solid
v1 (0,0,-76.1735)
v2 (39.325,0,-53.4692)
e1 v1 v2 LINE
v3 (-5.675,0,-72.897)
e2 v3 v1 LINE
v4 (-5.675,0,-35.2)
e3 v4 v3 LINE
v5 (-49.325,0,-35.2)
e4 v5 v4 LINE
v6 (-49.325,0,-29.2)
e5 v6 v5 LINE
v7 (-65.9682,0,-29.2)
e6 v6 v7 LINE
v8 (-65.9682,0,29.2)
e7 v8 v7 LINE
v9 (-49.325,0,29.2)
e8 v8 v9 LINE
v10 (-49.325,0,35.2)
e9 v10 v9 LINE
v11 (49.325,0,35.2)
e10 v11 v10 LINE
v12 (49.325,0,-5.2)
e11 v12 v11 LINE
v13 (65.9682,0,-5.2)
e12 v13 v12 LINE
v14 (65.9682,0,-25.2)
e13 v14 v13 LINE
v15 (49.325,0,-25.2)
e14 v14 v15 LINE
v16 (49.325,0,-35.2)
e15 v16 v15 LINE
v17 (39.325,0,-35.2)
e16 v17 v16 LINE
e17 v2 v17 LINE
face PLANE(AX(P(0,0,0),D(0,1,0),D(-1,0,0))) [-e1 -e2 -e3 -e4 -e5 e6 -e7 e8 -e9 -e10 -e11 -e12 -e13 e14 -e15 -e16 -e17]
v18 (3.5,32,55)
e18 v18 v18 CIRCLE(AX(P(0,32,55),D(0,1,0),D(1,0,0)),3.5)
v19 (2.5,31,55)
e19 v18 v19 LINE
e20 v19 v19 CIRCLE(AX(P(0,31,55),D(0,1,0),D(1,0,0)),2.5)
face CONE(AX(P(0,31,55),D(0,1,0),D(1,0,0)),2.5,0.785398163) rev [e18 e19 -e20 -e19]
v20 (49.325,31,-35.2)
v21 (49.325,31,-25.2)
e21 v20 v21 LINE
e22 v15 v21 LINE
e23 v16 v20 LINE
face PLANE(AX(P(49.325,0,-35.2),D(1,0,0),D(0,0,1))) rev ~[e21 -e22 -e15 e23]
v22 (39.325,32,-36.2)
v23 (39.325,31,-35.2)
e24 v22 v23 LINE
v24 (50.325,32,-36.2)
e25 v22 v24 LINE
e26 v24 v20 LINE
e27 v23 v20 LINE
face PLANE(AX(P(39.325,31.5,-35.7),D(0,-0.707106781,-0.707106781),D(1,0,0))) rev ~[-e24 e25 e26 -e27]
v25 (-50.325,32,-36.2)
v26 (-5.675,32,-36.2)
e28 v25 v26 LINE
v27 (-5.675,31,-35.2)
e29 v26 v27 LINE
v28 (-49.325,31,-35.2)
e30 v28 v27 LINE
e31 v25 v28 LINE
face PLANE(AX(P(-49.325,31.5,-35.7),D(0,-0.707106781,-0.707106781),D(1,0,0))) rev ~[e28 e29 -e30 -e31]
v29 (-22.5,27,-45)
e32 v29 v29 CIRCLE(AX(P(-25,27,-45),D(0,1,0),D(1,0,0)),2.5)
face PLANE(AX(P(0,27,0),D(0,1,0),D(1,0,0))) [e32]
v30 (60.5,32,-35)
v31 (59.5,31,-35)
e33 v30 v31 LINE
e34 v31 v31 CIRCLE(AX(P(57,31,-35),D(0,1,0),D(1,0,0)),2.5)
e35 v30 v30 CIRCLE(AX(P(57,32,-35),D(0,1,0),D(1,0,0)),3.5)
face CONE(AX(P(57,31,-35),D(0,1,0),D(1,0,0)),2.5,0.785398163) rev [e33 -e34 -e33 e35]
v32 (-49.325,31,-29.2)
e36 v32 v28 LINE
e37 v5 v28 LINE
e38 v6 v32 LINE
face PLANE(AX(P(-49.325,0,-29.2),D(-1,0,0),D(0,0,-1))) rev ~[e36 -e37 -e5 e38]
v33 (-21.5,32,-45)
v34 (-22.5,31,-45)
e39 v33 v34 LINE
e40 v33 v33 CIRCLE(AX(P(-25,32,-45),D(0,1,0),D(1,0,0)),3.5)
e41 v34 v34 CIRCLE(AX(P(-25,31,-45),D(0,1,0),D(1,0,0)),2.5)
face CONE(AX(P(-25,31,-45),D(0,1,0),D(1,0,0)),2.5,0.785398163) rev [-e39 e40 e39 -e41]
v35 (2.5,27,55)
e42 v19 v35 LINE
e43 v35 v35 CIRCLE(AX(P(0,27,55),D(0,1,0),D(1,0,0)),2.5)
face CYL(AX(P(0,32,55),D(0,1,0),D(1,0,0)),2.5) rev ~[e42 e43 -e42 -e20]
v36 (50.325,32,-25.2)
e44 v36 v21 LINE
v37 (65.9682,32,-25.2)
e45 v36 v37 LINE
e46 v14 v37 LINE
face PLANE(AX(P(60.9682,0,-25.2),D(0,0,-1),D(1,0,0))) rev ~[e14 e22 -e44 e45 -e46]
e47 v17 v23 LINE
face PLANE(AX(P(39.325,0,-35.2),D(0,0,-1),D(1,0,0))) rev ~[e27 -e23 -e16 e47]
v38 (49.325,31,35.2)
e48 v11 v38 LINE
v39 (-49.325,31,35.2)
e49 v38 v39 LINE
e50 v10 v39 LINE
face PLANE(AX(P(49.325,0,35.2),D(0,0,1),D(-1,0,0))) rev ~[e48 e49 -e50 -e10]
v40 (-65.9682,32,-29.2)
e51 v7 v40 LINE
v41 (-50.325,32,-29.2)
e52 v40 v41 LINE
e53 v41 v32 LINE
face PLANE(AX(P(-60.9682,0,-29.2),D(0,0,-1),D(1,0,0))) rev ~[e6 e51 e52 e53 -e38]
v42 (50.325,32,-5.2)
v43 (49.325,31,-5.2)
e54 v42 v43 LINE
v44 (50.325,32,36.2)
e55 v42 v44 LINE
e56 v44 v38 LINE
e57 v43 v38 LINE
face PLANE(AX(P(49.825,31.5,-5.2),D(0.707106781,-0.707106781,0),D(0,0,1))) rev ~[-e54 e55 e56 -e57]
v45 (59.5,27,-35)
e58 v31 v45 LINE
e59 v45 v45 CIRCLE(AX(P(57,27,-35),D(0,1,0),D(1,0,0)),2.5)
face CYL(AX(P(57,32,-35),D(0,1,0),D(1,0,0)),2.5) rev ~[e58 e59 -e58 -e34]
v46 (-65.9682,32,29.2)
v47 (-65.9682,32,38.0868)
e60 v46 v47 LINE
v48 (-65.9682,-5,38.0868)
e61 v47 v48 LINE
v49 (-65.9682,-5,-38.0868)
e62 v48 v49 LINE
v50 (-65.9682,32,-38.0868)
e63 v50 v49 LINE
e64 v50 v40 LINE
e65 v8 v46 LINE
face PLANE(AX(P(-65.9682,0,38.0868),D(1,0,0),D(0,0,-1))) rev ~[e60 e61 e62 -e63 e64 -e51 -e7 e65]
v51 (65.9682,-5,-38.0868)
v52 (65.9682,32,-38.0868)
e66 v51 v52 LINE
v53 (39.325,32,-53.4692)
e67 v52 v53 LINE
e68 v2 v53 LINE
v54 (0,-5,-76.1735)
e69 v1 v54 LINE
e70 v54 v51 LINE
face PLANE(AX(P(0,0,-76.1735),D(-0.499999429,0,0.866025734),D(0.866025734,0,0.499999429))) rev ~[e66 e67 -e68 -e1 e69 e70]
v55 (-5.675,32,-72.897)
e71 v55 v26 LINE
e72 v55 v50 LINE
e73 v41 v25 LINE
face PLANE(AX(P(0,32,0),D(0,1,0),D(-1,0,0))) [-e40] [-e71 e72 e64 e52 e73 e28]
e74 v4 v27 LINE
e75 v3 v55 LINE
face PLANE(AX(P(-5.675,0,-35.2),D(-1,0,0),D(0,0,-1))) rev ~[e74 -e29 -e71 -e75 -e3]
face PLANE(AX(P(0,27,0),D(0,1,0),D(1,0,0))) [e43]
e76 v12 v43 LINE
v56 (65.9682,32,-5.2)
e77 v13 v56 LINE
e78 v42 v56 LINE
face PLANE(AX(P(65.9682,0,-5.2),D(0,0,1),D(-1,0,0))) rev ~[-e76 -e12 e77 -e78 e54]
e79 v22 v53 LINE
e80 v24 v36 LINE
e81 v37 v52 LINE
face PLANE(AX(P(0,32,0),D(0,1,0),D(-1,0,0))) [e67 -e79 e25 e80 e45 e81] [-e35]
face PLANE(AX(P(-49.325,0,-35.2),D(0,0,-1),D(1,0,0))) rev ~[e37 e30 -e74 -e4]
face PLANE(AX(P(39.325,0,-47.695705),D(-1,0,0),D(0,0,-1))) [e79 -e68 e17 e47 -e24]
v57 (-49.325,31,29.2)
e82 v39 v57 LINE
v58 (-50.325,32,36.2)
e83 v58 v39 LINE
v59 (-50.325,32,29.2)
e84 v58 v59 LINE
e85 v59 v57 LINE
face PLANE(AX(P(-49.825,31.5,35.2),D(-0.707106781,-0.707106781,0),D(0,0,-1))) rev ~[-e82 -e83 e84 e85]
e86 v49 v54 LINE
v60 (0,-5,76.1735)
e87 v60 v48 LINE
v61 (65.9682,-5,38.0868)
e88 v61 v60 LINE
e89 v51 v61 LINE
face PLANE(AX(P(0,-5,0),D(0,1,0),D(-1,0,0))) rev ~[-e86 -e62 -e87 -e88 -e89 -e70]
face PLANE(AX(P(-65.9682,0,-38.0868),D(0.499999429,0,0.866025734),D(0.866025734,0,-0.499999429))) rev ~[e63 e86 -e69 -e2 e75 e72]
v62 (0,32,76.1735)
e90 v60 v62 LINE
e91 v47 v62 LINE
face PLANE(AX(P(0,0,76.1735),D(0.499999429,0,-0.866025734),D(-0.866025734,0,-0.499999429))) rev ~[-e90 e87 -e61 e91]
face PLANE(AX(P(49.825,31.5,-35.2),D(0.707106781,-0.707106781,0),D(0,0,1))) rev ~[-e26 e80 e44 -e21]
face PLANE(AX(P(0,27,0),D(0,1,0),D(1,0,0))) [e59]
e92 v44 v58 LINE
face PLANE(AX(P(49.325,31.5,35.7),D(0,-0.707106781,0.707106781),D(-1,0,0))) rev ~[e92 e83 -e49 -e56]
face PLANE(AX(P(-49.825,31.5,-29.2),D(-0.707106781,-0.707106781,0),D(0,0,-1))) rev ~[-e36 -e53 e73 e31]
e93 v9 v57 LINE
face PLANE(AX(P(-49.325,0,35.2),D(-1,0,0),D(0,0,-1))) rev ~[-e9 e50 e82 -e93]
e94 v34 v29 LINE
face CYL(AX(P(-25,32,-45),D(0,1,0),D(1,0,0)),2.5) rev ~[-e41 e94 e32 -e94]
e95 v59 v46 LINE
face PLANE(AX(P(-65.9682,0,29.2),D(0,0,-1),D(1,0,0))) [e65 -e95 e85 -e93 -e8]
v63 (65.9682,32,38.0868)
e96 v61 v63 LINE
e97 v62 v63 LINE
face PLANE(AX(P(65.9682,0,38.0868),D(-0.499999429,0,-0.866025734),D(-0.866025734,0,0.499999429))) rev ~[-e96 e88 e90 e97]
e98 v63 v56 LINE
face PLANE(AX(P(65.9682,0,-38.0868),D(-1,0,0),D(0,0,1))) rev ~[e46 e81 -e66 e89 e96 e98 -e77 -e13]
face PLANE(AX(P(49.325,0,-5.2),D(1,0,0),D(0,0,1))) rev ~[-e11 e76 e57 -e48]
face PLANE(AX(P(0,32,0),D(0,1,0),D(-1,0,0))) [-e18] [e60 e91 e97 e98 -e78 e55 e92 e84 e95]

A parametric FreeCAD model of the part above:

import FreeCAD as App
import Part
import Sketcher
Q = App.Units.Quantity


def edges_at(feature, points):
    """Names of the edges that pass closest to the given points."""
    edges = feature.Shape.Edges
    near = lambda p: min(range(len(edges)), key=lambda i: edges[i].distToShape(Part.Vertex(*p))[0])
    return sorted({f"Edge{near(p) + 1}" for p in points})

doc = App.newDocument("Part")
body = doc.addObject("PartDesign::Body", "Body")
body.AllowCompound = True

# Sketch on XZ plane
sketch1 = body.newObject("Sketcher::SketchObject", "Sketch")
sketch1.AttachmentSupport = (doc.getObject("XZ_Plane"), [""])
sketch1.MapMode = "FlatFace"
sketch1.addGeometry(Part.LineSegment(App.Vector(39, -53, 0), App.Vector(39, -35, 0)), False)
sketch1.addGeometry(Part.LineSegment(App.Vector(39, -35, 0), App.Vector(49, -35, 0)), False)
sketch1.addGeometry(Part.LineSegment(App.Vector(49, -35, 0), App.Vector(49, -25, 0)), False)
sketch1.addGeometry(Part.LineSegment(App.Vector(49, -25, 0), App.Vector(66, -25, 0)), False)
sketch1.addGeometry(Part.LineSegment(App.Vector(66, -25, 0), App.Vector(66, -38, 0)), False)
sketch1.addGeometry(Part.LineSegment(App.Vector(66, -38, 0), App.Vector(39, -53, 0)), False)
sketch1.addGeometry(Part.LineSegment(App.Vector(-6, -35, 0), App.Vector(-6, -73, 0)), False)
sketch1.addGeometry(Part.LineSegment(App.Vector(-6, -73, 0), App.Vector(-66, -38, 0)), False)
sketch1.addGeometry(Part.LineSegment(App.Vector(-66, -38, 0), App.Vector(-66, -29, 0)), False)
sketch1.addGeometry(Part.LineSegment(App.Vector(-66, -29, 0), App.Vector(-49, -29, 0)), False)
sketch1.addGeometry(Part.LineSegment(App.Vector(-49, -29, 0), App.Vector(-49, -35, 0)), False)
sketch1.addGeometry(Part.LineSegment(App.Vector(-49, -35, 0), App.Vector(-6, -35, 0)), False)
sketch1.addGeometry(Part.LineSegment(App.Vector(66, -5, 0), App.Vector(49, -5, 0)), False)
sketch1.addGeometry(Part.LineSegment(App.Vector(49, -5, 0), App.Vector(49, 35, 0)), False)
sketch1.addGeometry(Part.LineSegment(App.Vector(49, 35, 0), App.Vector(-49, 35, 0)), False)
sketch1.addGeometry(Part.LineSegment(App.Vector(-49, 35, 0), App.Vector(-49, 29, 0)), False)
sketch1.addGeometry(Part.LineSegment(App.Vector(-49, 29, 0), App.Vector(-66, 29, 0)), False)
sketch1.addGeometry(Part.LineSegment(App.Vector(-66, 29, 0), App.Vector(-66, 38, 0)), False)
sketch1.addGeometry(Part.LineSegment(App.Vector(-66, 38, 0), App.Vector(0, 76, 0)), False)
sketch1.addGeometry(Part.LineSegment(App.Vector(0, 76, 0), App.Vector(66, 38, 0)), False)
sketch1.addGeometry(Part.LineSegment(App.Vector(66, 38, 0), App.Vector(66, -5, 0)), False)
sketch1.addConstraint(Sketcher.Constraint("Coincident", 0, 2, 1, 1))
sketch1.addConstraint(Sketcher.Constraint("Coincident", 1, 2, 2, 1))
sketch1.addConstraint(Sketcher.Constraint("Coincident", 2, 2, 3, 1))
sketch1.addConstraint(Sketcher.Constraint("Coincident", 3, 2, 4, 1))
sketch1.addConstraint(Sketcher.Constraint("Coincident", 4, 2, 5, 1))
sketch1.addConstraint(Sketcher.Constraint("Coincident", 5, 2, 0, 1))
sketch1.addConstraint(Sketcher.Constraint("Coincident", 6, 2, 7, 1))
sketch1.addConstraint(Sketcher.Constraint("Coincident", 7, 2, 8, 1))
sketch1.addConstraint(Sketcher.Constraint("Coincident", 8, 2, 9, 1))
sketch1.addConstraint(Sketcher.Constraint("Coincident", 9, 2, 10, 1))
sketch1.addConstraint(Sketcher.Constraint("Coincident", 10, 2, 11, 1))
sketch1.addConstraint(Sketcher.Constraint("Coincident", 11, 2, 6, 1))
sketch1.addConstraint(Sketcher.Constraint("Coincident", 12, 2, 13, 1))
sketch1.addConstraint(Sketcher.Constraint("Coincident", 13, 2, 14, 1))
sketch1.addConstraint(Sketcher.Constraint("Coincident", 14, 2, 15, 1))
sketch1.addConstraint(Sketcher.Constraint("Coincident", 15, 2, 16, 1))
sketch1.addConstraint(Sketcher.Constraint("Coincident", 16, 2, 17, 1))
sketch1.addConstraint(Sketcher.Constraint("Coincident", 17, 2, 18, 1))
sketch1.addConstraint(Sketcher.Constraint("Coincident", 18, 2, 19, 1))
sketch1.addConstraint(Sketcher.Constraint("Coincident", 19, 2, 20, 1))
sketch1.addConstraint(Sketcher.Constraint("Coincident", 20, 2, 12, 1))
sketch1.addConstraint(Sketcher.Constraint("Vertical", 0))
sketch1.addConstraint(Sketcher.Constraint("Horizontal", 1))
sketch1.addConstraint(Sketcher.Constraint("Vertical", 2))
sketch1.addConstraint(Sketcher.Constraint("Horizontal", 3))
sketch1.addConstraint(Sketcher.Constraint("Vertical", 4))
sketch1.addConstraint(Sketcher.Constraint("Vertical", 6))
sketch1.addConstraint(Sketcher.Constraint("Vertical", 8))
sketch1.addConstraint(Sketcher.Constraint("Horizontal", 9))
sketch1.addConstraint(Sketcher.Constraint("Vertical", 10))
sketch1.addConstraint(Sketcher.Constraint("Horizontal", 11))
sketch1.addConstraint(Sketcher.Constraint("Horizontal", 12))
sketch1.addConstraint(Sketcher.Constraint("Vertical", 13))
sketch1.addConstraint(Sketcher.Constraint("Horizontal", 14))
sketch1.addConstraint(Sketcher.Constraint("Vertical", 15))
sketch1.addConstraint(Sketcher.Constraint("Horizontal", 16))
sketch1.addConstraint(Sketcher.Constraint("Vertical", 17))
sketch1.addConstraint(Sketcher.Constraint("Vertical", 20))
sketch1.addConstraint(Sketcher.Constraint("Symmetric", 10, 2, 13, 2, -1, 1))
sketch1.addConstraint(Sketcher.Constraint("Symmetric", 1, 2, 14, 2, -1, 1))
sketch1.addConstraint(Sketcher.Constraint("Symmetric", 4, 2, 17, 2, -1, 1))
sketch1.addConstraint(Sketcher.Constraint("Symmetric", 7, 2, 19, 2, -1, 1))
sketch1.addConstraint(Sketcher.Constraint("Symmetric", 4, 2, 7, 2, -2))
sketch1.addConstraint(Sketcher.Constraint("Symmetric", 9, 2, 15, 2, -1))
sketch1.addConstraint(Sketcher.Constraint("PointOnObject", 18, 2, -2))
sketch1.addConstraint(Sketcher.Constraint("Parallel", 5, 18))
sketch1.addConstraint(Sketcher.Constraint("Parallel", 7, 19))
sketch1.addConstraint(Sketcher.Constraint("Equal", 1, 2))
sketch1.addConstraint(Sketcher.Constraint("DistanceX", 1, 1, 1, 2, 10.0))
sketch1.addConstraint(Sketcher.Constraint("DistanceY", 10, 2, 10, 1, 6.0))
sketch1.addConstraint(Sketcher.Constraint("Angle", 18, Q("30 deg")))
sketch1.addConstraint(Sketcher.Constraint("DistanceX", 6, 2, 1, 2, 55.0))
sketch1.addConstraint(Sketcher.Constraint("DistanceY", 1, 2, 12, 2, 30.0))
sketch1.addConstraint(Sketcher.Constraint("DistanceX", 14, 2, 14, 1, 98.65))
sketch1.addConstraint(Sketcher.Constraint("DistanceY", 1, 2, 13, 2, 70.4))
sketch1.addConstraint(Sketcher.Constraint("DistanceY", 6, 2, 6, 1, 37.697))
sketch1.addConstraint(Sketcher.Constraint("Distance", 5, 30.765))
pad1 = body.newObject("PartDesign::Pad", "Pad")
pad1.Profile = sketch1
pad1.Length = 32
pad1.Reversed = True

# Sketch on XZ plane
sketch2 = body.newObject("Sketcher::SketchObject", "Sketch001")
sketch2.AttachmentSupport = (doc.getObject("XZ_Plane"), [""])
sketch2.MapMode = "FlatFace"
sketch2.addGeometry(Part.LineSegment(App.Vector(-66, 38, 0), App.Vector(0, 76, 0)), False)
sketch2.addGeometry(Part.LineSegment(App.Vector(0, 76, 0), App.Vector(66, 38, 0)), False)
sketch2.addGeometry(Part.LineSegment(App.Vector(66, 38, 0), App.Vector(66, -38, 0)), False)
sketch2.addGeometry(Part.LineSegment(App.Vector(66, -38, 0), App.Vector(0, -76, 0)), False)
sketch2.addGeometry(Part.LineSegment(App.Vector(0, -76, 0), App.Vector(-66, -38, 0)), False)
sketch2.addGeometry(Part.LineSegment(App.Vector(-66, -38, 0), App.Vector(-66, 38, 0)), False)
sketch2.addConstraint(Sketcher.Constraint("Coincident", 0, 2, 1, 1))
sketch2.addConstraint(Sketcher.Constraint("Coincident", 1, 2, 2, 1))
sketch2.addConstraint(Sketcher.Constraint("Coincident", 2, 2, 3, 1))
sketch2.addConstraint(Sketcher.Constraint("Coincident", 3, 2, 4, 1))
sketch2.addConstraint(Sketcher.Constraint("Coincident", 4, 2, 5, 1))
sketch2.addConstraint(Sketcher.Constraint("Coincident", 5, 2, 0, 1))
sketch2.addConstraint(Sketcher.Constraint("Vertical", 2))
sketch2.addConstraint(Sketcher.Constraint("Vertical", 5))
sketch2.addConstraint(Sketcher.Constraint("Symmetric", 0, 2, 3, 2, -1, 1))
sketch2.addConstraint(Sketcher.Constraint("Symmetric", 1, 2, 4, 2, -1, 1))
sketch2.addConstraint(Sketcher.Constraint("PointOnObject", 0, 2, -2))
sketch2.addConstraint(Sketcher.Constraint("Parallel", 0, 3))
sketch2.addConstraint(Sketcher.Constraint("Horizontal", 2, 2, 4, 2))
sketch2.addConstraint(Sketcher.Constraint("Angle", 0, Q("30 deg")))
sketch2.addConstraint(Sketcher.Constraint("DistanceY", 2, 2, 2, 1, 76.1736))
sketch2.addConstraint(Sketcher.Constraint("DistanceY", 3, 2, 0, 2, 152.347))
pad2 = body.newObject("PartDesign::Pad", "Pad001")
pad2.Profile = sketch2
pad2.Length = 5

# Sketch on XZ plane
sketch3 = body.newObject("Sketcher::SketchObject", "Sketch002")
sketch3.AttachmentSupport = (doc.getObject("XZ_Plane"), [""])
sketch3.MapMode = "FlatFace"
sketch3.AttachmentOffset = App.Placement(App.Vector(0, 0, -32), App.Rotation())
sketch3.addGeometry(Part.Circle(App.Vector(0, 55, 0), App.Vector(0, 0, 1), 2.5), False)
sketch3.addGeometry(Part.Circle(App.Vector(-25, -45, 0), App.Vector(0, 0, 1), 2.5), False)
sketch3.addGeometry(Part.Circle(App.Vector(57, -35, 0), App.Vector(0, 0, 1), 2.5), False)
sketch3.addConstraint(Sketcher.Constraint("Equal", 0, 1))
sketch3.addConstraint(Sketcher.Constraint("Equal", 1, 2))
sketch3.addConstraint(Sketcher.Constraint("PointOnObject", 0, 3, -2))
sketch3.addConstraint(Sketcher.Constraint("Diameter", 0, 5.0))
sketch3.addConstraint(Sketcher.Constraint("DistanceY", -1, 1, 0, 3, 55.0))
sketch3.addConstraint(Sketcher.Constraint("DistanceX", 1, 3, -1, 1, 25.0))
sketch3.addConstraint(Sketcher.Constraint("DistanceY", 1, 3, -1, 1, 45.0))
sketch3.addConstraint(Sketcher.Constraint("DistanceX", -1, 1, 2, 3, 57.0))
sketch3.addConstraint(Sketcher.Constraint("DistanceY", 2, 3, -1, 1, 35.0))
pocket1 = body.newObject("PartDesign::Pocket", "Pocket")
pocket1.Profile = sketch3
pocket1.Length = 5
pocket1.Reversed = True
doc.recompute()

chamfer = body.newObject("PartDesign::Chamfer", "Chamfer")
chamfer.Base = (pocket1, edges_at(pocket1, [
    (-2.5, 32, 55),
    (-27.5, 32, -45),
    (54.5, 32, -35),
    (-27.5, 32, -35.2),
    (-49.325, 32, -32.2),
    (-49.325, 32, 32.2),
    (0, 32, 35.2),
    (44.325, 32, -35.2),
    (49.325, 32, -30.2),
    (49.325, 32, 15),
]))
chamfer.Size = 1

doc.recompute()
